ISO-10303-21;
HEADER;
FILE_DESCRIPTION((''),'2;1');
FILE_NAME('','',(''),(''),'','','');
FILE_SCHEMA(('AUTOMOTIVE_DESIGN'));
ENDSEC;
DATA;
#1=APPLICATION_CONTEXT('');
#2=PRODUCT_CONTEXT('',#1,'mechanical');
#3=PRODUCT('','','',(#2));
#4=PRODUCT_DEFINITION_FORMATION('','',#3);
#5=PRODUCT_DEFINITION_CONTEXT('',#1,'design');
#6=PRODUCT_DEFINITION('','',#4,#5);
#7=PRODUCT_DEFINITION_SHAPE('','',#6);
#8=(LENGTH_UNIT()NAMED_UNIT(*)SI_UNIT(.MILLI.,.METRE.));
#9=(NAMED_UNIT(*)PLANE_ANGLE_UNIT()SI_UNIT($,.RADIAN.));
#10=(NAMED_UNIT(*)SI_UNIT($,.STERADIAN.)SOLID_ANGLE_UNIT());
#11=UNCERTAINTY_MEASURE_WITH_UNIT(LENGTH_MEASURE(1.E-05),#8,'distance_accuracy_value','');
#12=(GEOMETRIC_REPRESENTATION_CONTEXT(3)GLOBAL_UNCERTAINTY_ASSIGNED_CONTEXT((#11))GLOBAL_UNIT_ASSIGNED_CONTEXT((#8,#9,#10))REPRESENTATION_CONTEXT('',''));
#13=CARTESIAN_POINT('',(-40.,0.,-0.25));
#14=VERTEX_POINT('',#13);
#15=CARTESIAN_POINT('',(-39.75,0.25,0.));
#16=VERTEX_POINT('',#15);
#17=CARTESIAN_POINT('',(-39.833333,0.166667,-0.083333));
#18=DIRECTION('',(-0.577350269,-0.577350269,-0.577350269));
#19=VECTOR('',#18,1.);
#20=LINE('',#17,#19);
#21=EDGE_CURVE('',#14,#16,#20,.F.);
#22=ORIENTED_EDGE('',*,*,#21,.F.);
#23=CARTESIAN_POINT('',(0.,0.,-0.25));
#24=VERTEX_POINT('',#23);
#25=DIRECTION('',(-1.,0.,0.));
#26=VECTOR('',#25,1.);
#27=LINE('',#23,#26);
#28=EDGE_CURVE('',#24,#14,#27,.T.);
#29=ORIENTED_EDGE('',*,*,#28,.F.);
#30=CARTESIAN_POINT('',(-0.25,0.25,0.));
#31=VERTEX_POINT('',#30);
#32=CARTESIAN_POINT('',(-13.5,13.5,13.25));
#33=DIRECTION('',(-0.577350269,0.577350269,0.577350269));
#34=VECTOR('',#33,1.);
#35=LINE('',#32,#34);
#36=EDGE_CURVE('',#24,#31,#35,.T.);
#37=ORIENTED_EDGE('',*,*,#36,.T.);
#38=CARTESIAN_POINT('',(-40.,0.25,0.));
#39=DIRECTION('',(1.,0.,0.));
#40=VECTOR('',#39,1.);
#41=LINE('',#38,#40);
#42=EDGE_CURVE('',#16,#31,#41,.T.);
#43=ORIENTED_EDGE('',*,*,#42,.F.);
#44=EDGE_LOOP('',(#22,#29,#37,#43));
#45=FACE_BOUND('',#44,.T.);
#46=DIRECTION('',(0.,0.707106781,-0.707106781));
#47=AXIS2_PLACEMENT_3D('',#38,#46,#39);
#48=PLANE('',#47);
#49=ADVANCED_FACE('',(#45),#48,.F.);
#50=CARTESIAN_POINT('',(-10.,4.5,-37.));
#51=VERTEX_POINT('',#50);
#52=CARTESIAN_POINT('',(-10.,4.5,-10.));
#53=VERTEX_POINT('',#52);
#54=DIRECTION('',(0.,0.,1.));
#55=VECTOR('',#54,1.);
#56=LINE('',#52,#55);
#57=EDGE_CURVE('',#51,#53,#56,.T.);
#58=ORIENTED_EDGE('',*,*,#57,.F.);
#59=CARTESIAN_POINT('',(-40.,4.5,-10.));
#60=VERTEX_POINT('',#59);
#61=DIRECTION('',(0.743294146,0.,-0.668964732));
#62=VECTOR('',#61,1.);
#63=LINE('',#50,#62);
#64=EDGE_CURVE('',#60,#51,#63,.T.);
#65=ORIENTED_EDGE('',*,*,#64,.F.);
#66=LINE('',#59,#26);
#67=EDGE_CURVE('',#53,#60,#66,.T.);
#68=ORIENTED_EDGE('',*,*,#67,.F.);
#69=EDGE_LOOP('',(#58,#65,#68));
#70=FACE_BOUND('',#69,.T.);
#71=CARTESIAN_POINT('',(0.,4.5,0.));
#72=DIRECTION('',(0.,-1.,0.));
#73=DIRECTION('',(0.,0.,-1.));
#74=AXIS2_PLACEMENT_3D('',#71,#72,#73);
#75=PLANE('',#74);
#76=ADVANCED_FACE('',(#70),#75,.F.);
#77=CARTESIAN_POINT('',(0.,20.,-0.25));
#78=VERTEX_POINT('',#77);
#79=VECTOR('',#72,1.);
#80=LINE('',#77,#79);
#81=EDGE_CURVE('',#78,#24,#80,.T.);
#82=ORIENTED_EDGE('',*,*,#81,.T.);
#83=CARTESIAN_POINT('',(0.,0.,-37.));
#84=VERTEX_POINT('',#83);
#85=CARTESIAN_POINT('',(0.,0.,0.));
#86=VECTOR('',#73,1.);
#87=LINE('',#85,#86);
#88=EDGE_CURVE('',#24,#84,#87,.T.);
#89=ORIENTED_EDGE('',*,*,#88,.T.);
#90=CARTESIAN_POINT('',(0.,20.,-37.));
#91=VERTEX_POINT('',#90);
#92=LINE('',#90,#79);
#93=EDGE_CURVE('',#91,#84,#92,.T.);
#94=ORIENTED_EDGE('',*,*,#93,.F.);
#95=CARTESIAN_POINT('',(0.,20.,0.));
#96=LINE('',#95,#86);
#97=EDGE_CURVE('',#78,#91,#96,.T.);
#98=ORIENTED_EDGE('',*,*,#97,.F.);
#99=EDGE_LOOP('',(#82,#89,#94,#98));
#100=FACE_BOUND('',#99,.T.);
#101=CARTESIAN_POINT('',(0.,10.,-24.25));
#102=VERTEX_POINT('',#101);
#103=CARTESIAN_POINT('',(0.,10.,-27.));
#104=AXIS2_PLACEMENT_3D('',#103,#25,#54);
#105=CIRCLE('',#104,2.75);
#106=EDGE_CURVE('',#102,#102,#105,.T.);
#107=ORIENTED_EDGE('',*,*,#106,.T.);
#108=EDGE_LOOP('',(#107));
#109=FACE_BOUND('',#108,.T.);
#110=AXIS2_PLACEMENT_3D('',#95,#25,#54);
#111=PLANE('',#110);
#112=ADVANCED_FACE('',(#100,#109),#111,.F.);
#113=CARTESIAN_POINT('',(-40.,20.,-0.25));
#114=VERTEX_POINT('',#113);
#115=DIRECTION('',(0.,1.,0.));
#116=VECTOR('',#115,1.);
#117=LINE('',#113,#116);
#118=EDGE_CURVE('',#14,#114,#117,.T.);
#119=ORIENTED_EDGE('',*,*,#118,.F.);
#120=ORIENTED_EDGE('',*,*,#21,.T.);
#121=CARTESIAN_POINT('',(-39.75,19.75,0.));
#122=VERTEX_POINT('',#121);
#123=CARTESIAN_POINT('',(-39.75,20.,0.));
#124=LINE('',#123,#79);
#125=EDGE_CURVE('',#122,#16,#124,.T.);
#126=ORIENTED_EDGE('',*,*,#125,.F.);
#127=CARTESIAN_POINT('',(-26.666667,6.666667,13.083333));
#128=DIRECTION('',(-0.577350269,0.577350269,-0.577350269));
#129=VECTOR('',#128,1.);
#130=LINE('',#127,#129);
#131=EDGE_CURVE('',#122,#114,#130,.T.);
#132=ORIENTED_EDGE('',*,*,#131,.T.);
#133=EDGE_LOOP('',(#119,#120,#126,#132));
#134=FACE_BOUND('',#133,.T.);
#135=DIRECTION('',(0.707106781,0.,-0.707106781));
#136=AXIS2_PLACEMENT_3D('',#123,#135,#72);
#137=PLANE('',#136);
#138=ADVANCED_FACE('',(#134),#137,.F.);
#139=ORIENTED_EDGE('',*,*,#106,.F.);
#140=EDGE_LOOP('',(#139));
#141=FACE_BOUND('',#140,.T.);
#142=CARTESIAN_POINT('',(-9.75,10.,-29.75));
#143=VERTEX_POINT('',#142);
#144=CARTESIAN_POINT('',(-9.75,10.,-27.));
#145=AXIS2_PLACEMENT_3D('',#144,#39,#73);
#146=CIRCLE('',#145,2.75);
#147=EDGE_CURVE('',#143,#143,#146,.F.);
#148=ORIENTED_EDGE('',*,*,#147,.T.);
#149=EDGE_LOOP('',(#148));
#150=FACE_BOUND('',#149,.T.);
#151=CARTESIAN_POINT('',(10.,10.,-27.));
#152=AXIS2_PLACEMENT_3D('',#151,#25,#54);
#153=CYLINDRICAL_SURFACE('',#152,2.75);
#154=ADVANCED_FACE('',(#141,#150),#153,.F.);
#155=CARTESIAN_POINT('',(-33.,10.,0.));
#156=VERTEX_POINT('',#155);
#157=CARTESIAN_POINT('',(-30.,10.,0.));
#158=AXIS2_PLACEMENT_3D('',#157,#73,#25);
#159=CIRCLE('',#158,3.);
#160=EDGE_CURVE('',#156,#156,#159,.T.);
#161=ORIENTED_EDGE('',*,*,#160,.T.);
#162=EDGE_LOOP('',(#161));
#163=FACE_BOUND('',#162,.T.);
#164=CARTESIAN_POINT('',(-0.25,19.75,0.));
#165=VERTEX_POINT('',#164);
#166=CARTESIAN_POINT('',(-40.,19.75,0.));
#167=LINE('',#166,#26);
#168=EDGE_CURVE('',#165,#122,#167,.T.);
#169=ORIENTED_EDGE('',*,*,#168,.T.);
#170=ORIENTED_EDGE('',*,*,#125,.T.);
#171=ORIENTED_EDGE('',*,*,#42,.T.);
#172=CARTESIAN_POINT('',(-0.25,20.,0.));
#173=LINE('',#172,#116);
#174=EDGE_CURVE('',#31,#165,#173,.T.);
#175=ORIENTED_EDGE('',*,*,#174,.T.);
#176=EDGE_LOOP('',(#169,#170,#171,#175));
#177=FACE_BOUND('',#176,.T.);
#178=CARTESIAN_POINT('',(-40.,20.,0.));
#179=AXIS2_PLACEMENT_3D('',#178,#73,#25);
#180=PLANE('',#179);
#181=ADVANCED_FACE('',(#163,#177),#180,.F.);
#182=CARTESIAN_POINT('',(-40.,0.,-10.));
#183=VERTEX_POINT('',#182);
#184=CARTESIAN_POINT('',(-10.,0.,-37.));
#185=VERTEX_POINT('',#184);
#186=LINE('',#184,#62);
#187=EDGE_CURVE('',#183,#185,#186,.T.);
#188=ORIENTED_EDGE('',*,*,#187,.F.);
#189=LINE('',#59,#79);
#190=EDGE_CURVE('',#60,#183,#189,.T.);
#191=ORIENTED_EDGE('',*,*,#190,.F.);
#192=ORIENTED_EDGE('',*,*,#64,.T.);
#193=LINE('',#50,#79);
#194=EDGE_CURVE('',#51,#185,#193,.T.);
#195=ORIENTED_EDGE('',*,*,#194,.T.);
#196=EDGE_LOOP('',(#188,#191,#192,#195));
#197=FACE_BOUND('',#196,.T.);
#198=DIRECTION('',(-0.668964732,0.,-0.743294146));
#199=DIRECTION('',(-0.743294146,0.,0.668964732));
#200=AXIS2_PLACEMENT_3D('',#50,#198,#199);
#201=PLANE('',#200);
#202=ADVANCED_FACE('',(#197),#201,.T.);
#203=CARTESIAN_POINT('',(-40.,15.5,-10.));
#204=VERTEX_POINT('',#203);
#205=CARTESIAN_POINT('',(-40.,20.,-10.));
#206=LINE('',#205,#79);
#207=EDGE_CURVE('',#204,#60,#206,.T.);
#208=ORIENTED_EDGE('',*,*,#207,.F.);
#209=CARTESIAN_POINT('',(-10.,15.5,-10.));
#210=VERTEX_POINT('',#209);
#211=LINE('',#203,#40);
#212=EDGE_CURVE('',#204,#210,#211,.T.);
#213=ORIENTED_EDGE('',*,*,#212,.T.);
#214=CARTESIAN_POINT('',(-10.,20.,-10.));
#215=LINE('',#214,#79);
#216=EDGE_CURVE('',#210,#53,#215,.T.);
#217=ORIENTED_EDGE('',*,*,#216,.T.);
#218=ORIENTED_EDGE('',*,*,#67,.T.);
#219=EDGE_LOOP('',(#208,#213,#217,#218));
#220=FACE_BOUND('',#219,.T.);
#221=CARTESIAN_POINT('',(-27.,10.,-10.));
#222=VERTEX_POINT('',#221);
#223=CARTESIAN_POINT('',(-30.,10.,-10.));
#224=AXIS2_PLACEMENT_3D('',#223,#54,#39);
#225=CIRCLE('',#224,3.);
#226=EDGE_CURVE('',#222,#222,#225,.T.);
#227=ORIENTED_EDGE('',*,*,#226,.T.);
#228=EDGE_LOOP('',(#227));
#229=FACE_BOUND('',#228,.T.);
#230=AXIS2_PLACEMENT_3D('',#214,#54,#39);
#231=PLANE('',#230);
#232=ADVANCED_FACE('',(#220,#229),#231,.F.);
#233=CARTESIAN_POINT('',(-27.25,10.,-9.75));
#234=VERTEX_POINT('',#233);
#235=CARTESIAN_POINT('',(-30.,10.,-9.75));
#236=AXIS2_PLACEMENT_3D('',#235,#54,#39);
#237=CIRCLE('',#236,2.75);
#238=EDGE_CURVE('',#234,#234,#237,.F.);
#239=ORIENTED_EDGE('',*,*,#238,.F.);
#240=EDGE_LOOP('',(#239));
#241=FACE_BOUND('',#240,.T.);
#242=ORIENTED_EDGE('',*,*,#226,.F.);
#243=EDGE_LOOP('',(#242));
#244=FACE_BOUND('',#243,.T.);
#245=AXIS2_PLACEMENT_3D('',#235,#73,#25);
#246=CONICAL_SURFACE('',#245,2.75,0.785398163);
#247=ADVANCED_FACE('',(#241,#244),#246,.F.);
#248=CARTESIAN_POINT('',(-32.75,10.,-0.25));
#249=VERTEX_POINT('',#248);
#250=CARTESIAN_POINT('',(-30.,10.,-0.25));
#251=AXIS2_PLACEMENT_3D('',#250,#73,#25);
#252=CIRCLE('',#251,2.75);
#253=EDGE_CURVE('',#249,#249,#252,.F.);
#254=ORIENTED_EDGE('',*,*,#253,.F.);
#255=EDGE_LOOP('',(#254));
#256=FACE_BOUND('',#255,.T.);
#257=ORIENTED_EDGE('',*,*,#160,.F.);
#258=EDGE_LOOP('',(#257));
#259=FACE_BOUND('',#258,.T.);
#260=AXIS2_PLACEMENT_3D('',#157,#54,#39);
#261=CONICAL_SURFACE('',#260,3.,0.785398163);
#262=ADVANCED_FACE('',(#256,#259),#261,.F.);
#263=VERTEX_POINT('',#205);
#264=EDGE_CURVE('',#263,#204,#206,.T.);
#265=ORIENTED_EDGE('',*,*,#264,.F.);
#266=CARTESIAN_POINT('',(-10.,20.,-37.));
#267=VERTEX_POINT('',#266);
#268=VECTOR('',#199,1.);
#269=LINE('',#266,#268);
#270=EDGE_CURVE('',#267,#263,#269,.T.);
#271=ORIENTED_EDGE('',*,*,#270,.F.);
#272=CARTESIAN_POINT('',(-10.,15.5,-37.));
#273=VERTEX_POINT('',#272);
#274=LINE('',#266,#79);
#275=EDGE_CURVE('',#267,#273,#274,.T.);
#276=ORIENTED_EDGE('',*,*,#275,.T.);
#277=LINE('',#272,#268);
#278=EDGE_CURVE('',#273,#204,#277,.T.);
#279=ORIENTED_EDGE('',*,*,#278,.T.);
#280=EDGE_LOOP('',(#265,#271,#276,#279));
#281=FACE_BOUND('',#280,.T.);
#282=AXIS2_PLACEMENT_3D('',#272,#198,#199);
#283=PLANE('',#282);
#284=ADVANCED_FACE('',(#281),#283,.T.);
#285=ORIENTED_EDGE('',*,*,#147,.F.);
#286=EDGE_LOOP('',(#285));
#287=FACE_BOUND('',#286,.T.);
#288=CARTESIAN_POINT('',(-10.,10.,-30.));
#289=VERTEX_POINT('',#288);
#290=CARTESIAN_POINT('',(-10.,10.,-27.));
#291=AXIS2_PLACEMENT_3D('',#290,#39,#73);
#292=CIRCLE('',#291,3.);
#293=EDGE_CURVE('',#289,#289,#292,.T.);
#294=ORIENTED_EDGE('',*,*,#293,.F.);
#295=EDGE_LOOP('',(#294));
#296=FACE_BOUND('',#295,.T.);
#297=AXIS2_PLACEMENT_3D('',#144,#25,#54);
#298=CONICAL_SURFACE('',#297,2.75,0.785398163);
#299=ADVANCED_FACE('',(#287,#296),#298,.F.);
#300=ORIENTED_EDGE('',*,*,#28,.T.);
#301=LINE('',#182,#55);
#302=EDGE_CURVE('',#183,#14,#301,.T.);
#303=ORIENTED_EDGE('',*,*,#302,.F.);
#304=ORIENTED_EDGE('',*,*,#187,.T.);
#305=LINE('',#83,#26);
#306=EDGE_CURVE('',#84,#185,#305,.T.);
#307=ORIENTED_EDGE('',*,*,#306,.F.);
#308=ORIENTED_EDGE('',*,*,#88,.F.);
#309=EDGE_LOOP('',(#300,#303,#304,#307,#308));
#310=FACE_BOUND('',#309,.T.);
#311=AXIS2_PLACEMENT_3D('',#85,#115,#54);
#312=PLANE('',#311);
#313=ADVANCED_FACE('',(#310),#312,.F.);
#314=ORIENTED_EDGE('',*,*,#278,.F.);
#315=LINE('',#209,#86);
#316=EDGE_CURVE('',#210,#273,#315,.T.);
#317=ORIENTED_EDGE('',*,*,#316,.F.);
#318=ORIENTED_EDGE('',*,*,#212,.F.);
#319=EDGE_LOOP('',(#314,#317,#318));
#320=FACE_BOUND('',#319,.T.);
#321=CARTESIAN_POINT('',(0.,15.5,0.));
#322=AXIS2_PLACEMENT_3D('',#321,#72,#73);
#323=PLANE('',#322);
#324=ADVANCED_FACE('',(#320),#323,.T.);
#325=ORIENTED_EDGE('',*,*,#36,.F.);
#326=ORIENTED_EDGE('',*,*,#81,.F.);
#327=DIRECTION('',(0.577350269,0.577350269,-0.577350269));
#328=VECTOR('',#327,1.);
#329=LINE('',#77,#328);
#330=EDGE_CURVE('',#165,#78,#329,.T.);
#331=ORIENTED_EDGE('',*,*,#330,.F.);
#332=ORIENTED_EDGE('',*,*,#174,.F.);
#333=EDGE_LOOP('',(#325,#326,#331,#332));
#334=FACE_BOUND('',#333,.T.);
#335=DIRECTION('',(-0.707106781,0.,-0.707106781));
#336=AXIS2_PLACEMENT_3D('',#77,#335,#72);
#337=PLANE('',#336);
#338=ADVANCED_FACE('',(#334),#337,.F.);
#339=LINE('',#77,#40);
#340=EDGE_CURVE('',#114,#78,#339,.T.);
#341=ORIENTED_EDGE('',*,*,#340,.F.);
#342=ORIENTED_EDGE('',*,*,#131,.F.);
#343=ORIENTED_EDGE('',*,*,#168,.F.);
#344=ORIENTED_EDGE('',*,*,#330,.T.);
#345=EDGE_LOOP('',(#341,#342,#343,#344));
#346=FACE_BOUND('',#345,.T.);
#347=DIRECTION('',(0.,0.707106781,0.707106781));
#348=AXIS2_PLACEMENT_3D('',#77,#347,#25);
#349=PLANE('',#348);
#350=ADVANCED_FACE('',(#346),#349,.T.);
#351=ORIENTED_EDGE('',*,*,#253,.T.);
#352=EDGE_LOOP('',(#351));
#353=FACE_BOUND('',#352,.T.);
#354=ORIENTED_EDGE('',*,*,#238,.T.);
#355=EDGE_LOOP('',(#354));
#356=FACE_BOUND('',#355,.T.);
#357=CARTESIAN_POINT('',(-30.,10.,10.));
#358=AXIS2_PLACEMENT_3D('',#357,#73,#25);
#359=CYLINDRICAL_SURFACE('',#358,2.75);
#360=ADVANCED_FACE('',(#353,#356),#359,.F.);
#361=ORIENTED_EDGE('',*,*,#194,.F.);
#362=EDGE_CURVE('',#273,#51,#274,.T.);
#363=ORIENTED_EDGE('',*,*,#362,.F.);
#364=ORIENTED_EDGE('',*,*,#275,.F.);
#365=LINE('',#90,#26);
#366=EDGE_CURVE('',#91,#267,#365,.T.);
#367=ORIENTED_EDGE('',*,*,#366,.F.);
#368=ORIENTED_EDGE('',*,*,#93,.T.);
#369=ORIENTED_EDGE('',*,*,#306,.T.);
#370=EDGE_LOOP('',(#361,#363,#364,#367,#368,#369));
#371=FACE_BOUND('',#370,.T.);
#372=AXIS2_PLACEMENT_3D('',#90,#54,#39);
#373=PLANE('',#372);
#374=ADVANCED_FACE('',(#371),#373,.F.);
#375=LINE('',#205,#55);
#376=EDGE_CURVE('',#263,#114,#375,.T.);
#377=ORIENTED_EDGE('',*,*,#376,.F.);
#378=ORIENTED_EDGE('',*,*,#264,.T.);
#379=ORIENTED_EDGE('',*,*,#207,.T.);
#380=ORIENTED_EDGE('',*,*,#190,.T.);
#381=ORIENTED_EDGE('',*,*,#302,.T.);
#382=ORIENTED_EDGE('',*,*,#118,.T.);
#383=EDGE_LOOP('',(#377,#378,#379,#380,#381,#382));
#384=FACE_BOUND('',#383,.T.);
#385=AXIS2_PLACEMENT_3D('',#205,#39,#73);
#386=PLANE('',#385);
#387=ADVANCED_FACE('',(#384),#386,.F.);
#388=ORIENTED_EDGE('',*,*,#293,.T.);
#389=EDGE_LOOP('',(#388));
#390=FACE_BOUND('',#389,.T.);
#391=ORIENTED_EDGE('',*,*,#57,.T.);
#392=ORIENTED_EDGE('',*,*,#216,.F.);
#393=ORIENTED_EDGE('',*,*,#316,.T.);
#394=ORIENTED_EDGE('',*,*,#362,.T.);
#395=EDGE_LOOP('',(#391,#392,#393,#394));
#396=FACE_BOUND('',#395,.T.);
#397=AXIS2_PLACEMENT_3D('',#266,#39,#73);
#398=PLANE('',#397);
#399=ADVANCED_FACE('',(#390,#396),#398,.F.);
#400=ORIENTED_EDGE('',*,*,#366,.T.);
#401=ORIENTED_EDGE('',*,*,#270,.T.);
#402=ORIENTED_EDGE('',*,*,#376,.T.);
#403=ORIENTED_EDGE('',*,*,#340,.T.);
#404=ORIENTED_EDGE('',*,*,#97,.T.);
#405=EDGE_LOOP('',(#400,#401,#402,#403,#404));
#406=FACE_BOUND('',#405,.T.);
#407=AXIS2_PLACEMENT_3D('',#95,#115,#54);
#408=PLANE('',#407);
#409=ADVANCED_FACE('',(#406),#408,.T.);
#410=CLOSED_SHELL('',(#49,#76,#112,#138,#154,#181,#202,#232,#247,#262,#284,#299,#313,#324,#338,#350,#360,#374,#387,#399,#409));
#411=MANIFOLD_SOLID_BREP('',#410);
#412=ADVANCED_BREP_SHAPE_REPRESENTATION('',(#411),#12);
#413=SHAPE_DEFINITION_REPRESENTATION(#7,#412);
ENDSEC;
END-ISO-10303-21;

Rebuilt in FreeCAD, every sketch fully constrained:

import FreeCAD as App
import Part
import Sketcher

V = App.Vector
Q = App.Units.Quantity


def edges_at(feature, points):
    """Names of the edges that pass closest to the given points."""
    edges = feature.Shape.Edges
    near = lambda p: min(range(len(edges)), key=lambda i: edges[i].distToShape(Part.Vertex(*p))[0])
    return sorted({f"Edge{near(p) + 1}" for p in points})

doc = App.newDocument("Part")
params = doc.addObject("Spreadsheet::Sheet", "Params")
for row, (alias, value) in enumerate([
    ("sketch1_width", "10 mm"),
    ("sketch1_width2", "30 mm"),
    ("sketch1_height", "27 mm"),
    ("pad1_length", "20 mm"),
    ("sketch2_diameter", "5.5 mm"),
    ("pocket1_length", "20 mm"),
    ("sketch3_diameter", "5.5 mm"),
    ("pocket2_length", "20 mm"),
    ("sketch4_width", "30 mm"),
    ("sketch4_height", "27 mm"),
    ("pad2_length", "4.5 mm"),
    ("sketch5_width", "30 mm"),
    ("sketch5_height", "27 mm"),
    ("pad3_length", "4.5 mm"),
    ("chamfer_size", "0.25 mm"),
], start=1):
    params.set(f"A{row}", alias)
    params.set(f"B{row}", "=" + value)
    params.setAlias(f"B{row}", alias)

body = doc.addObject("PartDesign::Body", "Body")

# Sketch on XZ plane
sketch1 = body.newObject("Sketcher::SketchObject", "Sketch")
sketch1.AttachmentSupport = (doc.getObject("XZ_Plane"), [""])
sketch1.MapMode = "FlatFace"
sketch1.addGeometry([
    Part.LineSegment(V(0, -37, 0), V(-10, -37, 0)),  # 0
    Part.LineSegment(V(-10, -37, 0), V(-10, -10, 0)),  # 1
    Part.LineSegment(V(-10, -10, 0), V(-40, -10, 0)),  # 2
    Part.LineSegment(V(-40, -10, 0), V(-40, 0, 0)),  # 3
    Part.LineSegment(V(-40, 0, 0), V(0, 0, 0)),  # 4
    Part.LineSegment(V(0, 0, 0), V(0, -37, 0)),  # 5
], False)
sketch1.addConstraint([
    Sketcher.Constraint("Coincident", 0, 2, 1, 1),
    Sketcher.Constraint("Coincident", 1, 2, 2, 1),
    Sketcher.Constraint("Coincident", 2, 2, 3, 1),
    Sketcher.Constraint("Coincident", 3, 2, 4, 1),
    Sketcher.Constraint("Coincident", 4, 2, 5, 1),
    Sketcher.Constraint("Coincident", 5, 2, 0, 1),
    Sketcher.Constraint("Horizontal", 0),
    Sketcher.Constraint("Vertical", 1),
    Sketcher.Constraint("Horizontal", 2),
    Sketcher.Constraint("Vertical", 3),
    Sketcher.Constraint("Horizontal", 4),
    Sketcher.Constraint("Vertical", 5),
    Sketcher.Constraint("Coincident", 4, 2, -1, 1),
    Sketcher.Constraint("Equal", 0, 3),
    Sketcher.Constraint("DistanceX", 0, 2, 0, 1, Q("10 mm")),
    Sketcher.Constraint("DistanceX", 2, 2, 2, 1, Q("30 mm")),
    Sketcher.Constraint("DistanceY", 1, 1, 1, 2, Q("27 mm")),
])
sketch1.setExpression("Constraints[14]", "Params.sketch1_width")
sketch1.setExpression("Constraints[15]", "Params.sketch1_width2")
sketch1.setExpression("Constraints[16]", "Params.sketch1_height")
pad1 = body.newObject("PartDesign::Pad", "Pad")
pad1.Profile = sketch1
pad1.setExpression("Length", "Params.pad1_length")
pad1.Reversed = True

# Sketch on YZ plane
sketch2 = body.newObject("Sketcher::SketchObject", "Sketch001")
sketch2.AttachmentSupport = (doc.getObject("YZ_Plane"), [""])
sketch2.MapMode = "FlatFace"
sketch2.AttachmentOffset = App.Placement(V(0, 0, -10), App.Rotation())
sketch2.addGeometry(Part.Circle(V(10, -27, 0), V(0, 0, 1), 2.8), False)
sketch2.addConstraint([
    Sketcher.Constraint("Diameter", 0, Q("5.5 mm")),
    Sketcher.Constraint("DistanceX", -1, 1, 0, 3, Q("10 mm")),
    Sketcher.Constraint("DistanceY", 0, 3, -1, 1, Q("27 mm")),
])
sketch2.setExpression("Constraints[0]", "Params.sketch2_diameter")
pocket1 = body.newObject("PartDesign::Pocket", "Pocket")
pocket1.Profile = sketch2
pocket1.setExpression("Length", "Params.pocket1_length")
pocket1.Reversed = True

# Sketch on XY plane
sketch3 = body.newObject("Sketcher::SketchObject", "Sketch002")
sketch3.AttachmentSupport = (doc.getObject("XY_Plane"), [""])
sketch3.MapMode = "FlatFace"
sketch3.AttachmentOffset = App.Placement(V(0, 0, -10), App.Rotation())
sketch3.addGeometry(Part.Circle(V(-30, 10, 0), V(0, 0, 1), 2.8), False)
sketch3.addConstraint([
    Sketcher.Constraint("Diameter", 0, Q("5.5 mm")),
    Sketcher.Constraint("DistanceX", 0, 3, -1, 1, Q("30 mm")),
    Sketcher.Constraint("DistanceY", -1, 1, 0, 3, Q("10 mm")),
])
sketch3.setExpression("Constraints[0]", "Params.sketch3_diameter")
pocket2 = body.newObject("PartDesign::Pocket", "Pocket001")
pocket2.Profile = sketch3
pocket2.setExpression("Length", "Params.pocket2_length")
pocket2.Reversed = True

# Sketch on XZ plane
sketch4 = body.newObject("Sketcher::SketchObject", "Sketch003")
sketch4.AttachmentSupport = (doc.getObject("XZ_Plane"), [""])
sketch4.MapMode = "FlatFace"
sketch4.addGeometry([
    Part.LineSegment(V(-10, -10, 0), V(-40, -10, 0)),
    Part.LineSegment(V(-40, -10, 0), V(-10, -37, 0)),
    Part.LineSegment(V(-10, -37, 0), V(-10, -10, 0)),
], False)
sketch4.addConstraint([
    Sketcher.Constraint("Coincident", 0, 2, 1, 1),
    Sketcher.Constraint("Coincident", 1, 2, 2, 1),
    Sketcher.Constraint("Coincident", 2, 2, 0, 1),
    Sketcher.Constraint("Horizontal", 0),
    Sketcher.Constraint("Vertical", 2),
    Sketcher.Constraint("DistanceX", 0, 2, 0, 1, Q("30 mm")),
    Sketcher.Constraint("DistanceY", 2, 1, 2, 2, Q("27 mm")),
    Sketcher.Constraint("DistanceX", 0, 2, -1, 1, Q("40 mm")),
    Sketcher.Constraint("DistanceY", 0, 2, -1, 1, Q("10 mm")),
])
sketch4.setExpression("Constraints[5]", "Params.sketch4_width")
sketch4.setExpression("Constraints[6]", "Params.sketch4_height")
pad2 = body.newObject("PartDesign::Pad", "Pad001")
pad2.Profile = sketch4
pad2.setExpression("Length", "Params.pad2_length")
pad2.Reversed = True

# Sketch on XZ plane
sketch5 = body.newObject("Sketcher::SketchObject", "Sketch004")
sketch5.AttachmentSupport = (doc.getObject("XZ_Plane"), [""])
sketch5.MapMode = "FlatFace"
sketch5.AttachmentOffset = App.Placement(V(0, 0, -20), App.Rotation())
sketch5.addGeometry([
    Part.LineSegment(V(-40, -10, 0), V(-10, -10, 0)),
    Part.LineSegment(V(-10, -10, 0), V(-10, -37, 0)),
    Part.LineSegment(V(-10, -37, 0), V(-40, -10, 0)),
], False)
sketch5.addConstraint([
    Sketcher.Constraint("Coincident", 0, 2, 1, 1),
    Sketcher.Constraint("Coincident", 1, 2, 2, 1),
    Sketcher.Constraint("Coincident", 2, 2, 0, 1),
    Sketcher.Constraint("Horizontal", 0),
    Sketcher.Constraint("Vertical", 1),
    Sketcher.Constraint("DistanceX", 0, 1, 0, 2, Q("30 mm")),
    Sketcher.Constraint("DistanceY", 1, 2, 1, 1, Q("27 mm")),
    Sketcher.Constraint("DistanceX", 0, 2, -1, 1, Q("10 mm")),
    Sketcher.Constraint("DistanceY", 0, 2, -1, 1, Q("10 mm")),
])
sketch5.setExpression("Constraints[5]", "Params.sketch5_width")
sketch5.setExpression("Constraints[6]", "Params.sketch5_height")
pad3 = body.newObject("PartDesign::Pad", "Pad002")
pad3.Profile = sketch5
pad3.setExpression("Length", "Params.pad3_length")
doc.recompute()

chamfer = body.newObject("PartDesign::Chamfer", "Chamfer")
chamfer.Base = (pad3, edges_at(pad3, [
    (0, 10, 0),
    (-40, 10, 0),
    (-10, 10, -29.75),
    (-20, 20, 0),
    (-27.25, 10, 0),
    (-27.25, 10, -10),
    (-20, 0, 0),
]))
chamfer.setExpression("Size", "Params.chamfer_size")

doc.recompute()
